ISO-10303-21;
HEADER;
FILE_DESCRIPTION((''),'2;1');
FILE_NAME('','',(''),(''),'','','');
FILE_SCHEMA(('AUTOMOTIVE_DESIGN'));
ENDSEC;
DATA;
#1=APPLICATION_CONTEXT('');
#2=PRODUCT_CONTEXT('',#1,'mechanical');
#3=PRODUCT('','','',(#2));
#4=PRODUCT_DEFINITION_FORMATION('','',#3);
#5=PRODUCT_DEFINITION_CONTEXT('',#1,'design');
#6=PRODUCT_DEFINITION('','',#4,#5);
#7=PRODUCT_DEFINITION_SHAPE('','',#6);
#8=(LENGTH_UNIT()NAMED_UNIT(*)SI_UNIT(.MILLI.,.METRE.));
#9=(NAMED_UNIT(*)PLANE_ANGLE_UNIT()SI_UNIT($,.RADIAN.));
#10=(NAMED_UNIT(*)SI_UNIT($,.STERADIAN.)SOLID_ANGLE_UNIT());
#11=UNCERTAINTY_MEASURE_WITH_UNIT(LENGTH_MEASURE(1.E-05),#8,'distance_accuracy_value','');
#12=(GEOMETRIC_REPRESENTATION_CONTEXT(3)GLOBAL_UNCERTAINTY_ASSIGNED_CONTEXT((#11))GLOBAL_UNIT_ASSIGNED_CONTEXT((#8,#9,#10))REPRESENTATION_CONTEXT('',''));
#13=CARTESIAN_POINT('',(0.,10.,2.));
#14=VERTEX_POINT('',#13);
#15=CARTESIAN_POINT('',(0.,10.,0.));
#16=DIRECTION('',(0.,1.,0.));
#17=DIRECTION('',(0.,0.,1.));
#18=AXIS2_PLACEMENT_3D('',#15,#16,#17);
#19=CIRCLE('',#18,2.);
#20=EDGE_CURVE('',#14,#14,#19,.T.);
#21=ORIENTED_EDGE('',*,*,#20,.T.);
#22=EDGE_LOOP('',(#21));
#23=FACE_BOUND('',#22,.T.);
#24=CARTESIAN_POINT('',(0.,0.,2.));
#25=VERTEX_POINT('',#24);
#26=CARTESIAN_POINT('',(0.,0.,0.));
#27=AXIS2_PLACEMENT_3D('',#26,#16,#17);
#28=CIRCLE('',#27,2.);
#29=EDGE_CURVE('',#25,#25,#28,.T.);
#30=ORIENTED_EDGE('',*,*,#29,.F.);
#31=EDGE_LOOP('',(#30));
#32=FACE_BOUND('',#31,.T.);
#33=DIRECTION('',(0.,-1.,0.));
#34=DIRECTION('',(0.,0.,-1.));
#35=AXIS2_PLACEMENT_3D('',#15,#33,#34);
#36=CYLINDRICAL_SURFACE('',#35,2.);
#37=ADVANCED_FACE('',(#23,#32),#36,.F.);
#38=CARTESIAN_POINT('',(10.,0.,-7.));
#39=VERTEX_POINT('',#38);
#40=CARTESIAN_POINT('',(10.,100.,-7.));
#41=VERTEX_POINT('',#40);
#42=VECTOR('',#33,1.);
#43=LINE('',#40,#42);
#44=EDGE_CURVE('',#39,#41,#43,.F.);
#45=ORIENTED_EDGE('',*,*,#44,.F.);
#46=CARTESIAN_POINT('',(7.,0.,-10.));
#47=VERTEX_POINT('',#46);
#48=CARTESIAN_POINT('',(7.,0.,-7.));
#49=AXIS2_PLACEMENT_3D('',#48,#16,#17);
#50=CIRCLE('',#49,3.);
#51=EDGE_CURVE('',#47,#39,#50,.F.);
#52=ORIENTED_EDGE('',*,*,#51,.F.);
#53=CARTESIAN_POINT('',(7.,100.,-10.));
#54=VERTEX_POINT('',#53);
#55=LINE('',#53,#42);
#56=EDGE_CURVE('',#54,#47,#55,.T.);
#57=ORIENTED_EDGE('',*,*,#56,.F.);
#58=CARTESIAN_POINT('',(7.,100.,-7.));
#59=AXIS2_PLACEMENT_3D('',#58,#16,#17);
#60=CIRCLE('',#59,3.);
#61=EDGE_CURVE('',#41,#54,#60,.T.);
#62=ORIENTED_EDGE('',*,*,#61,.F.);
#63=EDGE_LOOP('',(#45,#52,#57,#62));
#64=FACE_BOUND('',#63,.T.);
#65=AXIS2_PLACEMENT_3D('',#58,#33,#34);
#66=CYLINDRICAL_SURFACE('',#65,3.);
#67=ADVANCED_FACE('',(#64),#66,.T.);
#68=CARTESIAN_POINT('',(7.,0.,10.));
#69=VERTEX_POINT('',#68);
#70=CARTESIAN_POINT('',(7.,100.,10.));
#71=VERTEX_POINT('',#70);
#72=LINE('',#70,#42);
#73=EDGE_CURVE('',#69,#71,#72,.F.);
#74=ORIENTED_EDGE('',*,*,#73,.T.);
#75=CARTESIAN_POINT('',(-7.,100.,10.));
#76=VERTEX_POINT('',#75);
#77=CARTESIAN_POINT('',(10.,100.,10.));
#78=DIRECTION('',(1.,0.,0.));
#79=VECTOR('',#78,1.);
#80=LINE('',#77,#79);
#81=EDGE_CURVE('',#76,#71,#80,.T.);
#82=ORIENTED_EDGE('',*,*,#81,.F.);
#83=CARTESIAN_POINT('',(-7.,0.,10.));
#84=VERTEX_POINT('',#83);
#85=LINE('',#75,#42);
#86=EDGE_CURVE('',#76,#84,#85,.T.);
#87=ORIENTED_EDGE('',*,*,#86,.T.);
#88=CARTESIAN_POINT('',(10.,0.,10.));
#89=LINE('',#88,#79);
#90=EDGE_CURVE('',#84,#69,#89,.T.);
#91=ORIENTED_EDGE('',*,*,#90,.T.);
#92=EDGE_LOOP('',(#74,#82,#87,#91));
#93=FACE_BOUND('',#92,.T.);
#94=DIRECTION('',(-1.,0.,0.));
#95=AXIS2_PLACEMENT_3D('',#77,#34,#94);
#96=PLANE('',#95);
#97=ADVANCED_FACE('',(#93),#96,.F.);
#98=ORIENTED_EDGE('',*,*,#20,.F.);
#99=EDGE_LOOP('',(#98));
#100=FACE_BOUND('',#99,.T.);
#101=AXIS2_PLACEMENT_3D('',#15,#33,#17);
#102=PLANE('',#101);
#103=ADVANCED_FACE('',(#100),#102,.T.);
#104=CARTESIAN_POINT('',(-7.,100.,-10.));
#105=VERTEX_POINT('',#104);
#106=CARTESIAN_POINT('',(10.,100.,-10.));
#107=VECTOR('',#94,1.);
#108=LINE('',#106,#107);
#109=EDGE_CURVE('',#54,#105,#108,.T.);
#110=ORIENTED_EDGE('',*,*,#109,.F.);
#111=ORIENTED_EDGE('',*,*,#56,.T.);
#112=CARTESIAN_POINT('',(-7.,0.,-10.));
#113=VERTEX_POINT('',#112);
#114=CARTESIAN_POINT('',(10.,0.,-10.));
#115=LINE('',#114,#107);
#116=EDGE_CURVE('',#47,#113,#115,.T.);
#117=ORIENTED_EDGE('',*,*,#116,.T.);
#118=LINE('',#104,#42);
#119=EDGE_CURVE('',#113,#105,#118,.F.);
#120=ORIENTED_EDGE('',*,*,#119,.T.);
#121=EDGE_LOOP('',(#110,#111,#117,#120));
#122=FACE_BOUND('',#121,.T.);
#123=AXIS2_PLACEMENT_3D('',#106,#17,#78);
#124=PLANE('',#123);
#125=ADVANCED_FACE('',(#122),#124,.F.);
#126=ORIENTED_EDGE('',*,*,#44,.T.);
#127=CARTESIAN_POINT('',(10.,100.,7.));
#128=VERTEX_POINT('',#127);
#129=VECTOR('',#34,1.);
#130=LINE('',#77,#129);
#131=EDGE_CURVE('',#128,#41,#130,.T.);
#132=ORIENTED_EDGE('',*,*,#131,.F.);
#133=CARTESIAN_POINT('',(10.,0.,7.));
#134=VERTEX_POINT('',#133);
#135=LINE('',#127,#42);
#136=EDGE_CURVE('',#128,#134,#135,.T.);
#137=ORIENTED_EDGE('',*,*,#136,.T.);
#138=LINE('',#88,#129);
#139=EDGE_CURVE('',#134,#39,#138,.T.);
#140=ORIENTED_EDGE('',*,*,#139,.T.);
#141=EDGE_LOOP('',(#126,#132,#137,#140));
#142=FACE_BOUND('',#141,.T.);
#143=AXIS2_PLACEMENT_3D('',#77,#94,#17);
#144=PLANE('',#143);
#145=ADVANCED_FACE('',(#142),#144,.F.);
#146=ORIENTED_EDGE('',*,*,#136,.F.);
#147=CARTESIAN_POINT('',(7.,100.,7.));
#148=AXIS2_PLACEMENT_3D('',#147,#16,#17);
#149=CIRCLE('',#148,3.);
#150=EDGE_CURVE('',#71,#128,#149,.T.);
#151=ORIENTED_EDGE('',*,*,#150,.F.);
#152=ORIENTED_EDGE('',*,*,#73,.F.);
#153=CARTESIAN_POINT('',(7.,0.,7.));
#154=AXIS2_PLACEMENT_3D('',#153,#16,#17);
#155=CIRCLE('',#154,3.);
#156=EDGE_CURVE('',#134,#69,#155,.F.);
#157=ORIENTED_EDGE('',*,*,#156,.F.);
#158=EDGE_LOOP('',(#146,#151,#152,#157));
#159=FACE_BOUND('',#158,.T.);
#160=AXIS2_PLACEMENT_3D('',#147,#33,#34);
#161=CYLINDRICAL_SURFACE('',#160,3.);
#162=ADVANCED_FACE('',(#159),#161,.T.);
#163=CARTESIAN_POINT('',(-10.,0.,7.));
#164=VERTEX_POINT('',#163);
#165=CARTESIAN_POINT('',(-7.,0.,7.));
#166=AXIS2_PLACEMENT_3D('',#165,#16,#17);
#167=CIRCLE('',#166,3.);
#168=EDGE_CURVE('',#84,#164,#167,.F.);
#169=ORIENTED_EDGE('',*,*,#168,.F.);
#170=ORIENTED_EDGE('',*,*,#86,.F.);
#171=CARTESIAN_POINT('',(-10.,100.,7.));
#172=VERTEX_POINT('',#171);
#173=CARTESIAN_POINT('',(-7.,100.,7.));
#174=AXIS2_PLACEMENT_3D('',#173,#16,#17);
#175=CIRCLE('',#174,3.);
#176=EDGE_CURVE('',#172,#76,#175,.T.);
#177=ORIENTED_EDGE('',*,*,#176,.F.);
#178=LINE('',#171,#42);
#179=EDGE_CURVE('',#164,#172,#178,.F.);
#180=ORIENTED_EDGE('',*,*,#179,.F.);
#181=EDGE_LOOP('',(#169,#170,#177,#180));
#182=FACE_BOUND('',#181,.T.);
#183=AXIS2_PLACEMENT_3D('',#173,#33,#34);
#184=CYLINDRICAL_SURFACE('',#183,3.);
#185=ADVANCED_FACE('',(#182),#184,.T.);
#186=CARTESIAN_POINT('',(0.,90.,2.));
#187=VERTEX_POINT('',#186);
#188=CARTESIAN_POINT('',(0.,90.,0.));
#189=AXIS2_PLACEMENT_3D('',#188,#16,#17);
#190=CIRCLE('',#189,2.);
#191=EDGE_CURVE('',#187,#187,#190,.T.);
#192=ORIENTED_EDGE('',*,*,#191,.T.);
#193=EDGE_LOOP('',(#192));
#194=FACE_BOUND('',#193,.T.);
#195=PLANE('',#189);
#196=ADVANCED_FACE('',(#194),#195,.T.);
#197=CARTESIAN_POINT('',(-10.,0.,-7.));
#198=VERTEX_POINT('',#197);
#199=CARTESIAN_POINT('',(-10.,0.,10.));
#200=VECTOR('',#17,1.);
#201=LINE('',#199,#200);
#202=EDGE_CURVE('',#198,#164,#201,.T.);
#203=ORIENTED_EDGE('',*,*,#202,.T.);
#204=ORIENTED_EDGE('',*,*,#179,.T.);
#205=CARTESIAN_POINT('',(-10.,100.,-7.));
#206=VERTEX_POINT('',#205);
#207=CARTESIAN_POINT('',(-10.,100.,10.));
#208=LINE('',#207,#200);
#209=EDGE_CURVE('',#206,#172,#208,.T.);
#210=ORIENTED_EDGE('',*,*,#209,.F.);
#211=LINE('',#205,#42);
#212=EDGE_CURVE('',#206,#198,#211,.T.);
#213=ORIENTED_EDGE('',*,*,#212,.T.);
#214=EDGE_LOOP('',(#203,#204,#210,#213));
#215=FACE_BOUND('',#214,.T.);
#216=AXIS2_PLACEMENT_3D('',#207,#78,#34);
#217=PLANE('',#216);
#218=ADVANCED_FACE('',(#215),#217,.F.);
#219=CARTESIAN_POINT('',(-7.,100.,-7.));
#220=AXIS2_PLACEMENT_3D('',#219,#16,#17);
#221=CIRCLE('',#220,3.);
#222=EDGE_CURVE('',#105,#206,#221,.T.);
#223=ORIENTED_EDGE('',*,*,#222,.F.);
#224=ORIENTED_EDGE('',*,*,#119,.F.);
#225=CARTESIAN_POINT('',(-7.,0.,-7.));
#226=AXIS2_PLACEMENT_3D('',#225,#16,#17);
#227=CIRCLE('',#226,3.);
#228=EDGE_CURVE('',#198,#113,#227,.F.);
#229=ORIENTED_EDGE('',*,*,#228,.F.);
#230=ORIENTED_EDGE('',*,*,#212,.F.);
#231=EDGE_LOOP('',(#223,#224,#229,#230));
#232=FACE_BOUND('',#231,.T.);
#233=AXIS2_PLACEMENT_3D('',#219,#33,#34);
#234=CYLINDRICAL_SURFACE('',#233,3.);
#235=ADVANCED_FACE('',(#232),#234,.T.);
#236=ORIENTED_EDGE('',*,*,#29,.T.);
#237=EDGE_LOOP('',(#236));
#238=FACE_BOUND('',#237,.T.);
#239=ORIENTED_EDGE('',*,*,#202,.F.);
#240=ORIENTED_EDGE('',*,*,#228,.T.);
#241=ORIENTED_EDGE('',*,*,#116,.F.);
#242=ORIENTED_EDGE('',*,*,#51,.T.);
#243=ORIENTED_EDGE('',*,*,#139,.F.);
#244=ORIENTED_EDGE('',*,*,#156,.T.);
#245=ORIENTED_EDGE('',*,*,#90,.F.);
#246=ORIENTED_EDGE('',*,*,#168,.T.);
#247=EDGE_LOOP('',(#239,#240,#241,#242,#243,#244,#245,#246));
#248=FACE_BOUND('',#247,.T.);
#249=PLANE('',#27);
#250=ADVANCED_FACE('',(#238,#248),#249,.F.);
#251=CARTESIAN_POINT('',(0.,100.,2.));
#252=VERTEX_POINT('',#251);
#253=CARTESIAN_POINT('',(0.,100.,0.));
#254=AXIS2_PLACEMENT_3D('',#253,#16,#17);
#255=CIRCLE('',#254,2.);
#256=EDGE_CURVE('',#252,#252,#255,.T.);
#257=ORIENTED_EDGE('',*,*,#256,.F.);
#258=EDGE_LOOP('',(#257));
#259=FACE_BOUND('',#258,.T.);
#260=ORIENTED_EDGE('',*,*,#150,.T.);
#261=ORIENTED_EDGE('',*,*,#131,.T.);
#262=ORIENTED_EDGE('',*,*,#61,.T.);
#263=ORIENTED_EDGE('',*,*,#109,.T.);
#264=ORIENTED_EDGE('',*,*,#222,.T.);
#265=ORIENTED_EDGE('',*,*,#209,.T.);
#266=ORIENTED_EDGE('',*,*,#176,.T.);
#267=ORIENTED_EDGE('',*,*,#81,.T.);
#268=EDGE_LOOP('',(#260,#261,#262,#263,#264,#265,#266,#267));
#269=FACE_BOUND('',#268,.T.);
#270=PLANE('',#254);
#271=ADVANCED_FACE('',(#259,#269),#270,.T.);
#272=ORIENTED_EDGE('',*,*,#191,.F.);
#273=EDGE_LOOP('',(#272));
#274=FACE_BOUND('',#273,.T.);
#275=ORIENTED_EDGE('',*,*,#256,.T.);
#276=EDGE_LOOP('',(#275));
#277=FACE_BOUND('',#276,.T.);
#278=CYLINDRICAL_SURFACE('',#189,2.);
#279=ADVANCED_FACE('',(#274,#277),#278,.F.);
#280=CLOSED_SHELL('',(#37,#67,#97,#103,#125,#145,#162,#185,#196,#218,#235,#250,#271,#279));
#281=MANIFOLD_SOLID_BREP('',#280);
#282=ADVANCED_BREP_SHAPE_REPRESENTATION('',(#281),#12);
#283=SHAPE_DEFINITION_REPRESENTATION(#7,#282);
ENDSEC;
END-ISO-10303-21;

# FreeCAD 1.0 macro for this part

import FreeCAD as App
import Part
import Sketcher

V = App.Vector
Q = App.Units.Quantity


def edges_at(feature, points):
    """Names of the edges that pass closest to the given points."""
    edges = feature.Shape.Edges
    near = lambda p: min(range(len(edges)), key=lambda i: edges[i].distToShape(Part.Vertex(*p))[0])
    return sorted({f"Edge{near(p) + 1}" for p in points})

doc = App.newDocument("Part")
params = doc.addObject("Spreadsheet::Sheet", "Params")
for row, (alias, value) in enumerate([
    ("sketch1_width", "20 mm"),
    ("pad1_length", "100 mm"),
    ("fillet_radius", "3 mm"),
    ("sketch2_diameter", "4 mm"),
    ("pocket1_length", "10 mm"),
], start=1):
    params.set(f"A{row}", alias)
    params.set(f"B{row}", "=" + value)
    params.setAlias(f"B{row}", alias)

body = doc.addObject("PartDesign::Body", "Body")

sketch1 = body.newObject("Sketcher::SketchObject", "Sketch")
sketch1.AttachmentSupport = (doc.getObject("XZ_Plane"), [""])
sketch1.MapMode = "FlatFace"
sketch1.addGeometry([
    Part.LineSegment(V(-10, -10, 0), V(-10, 10, 0)),
    Part.LineSegment(V(-10, 10, 0), V(10, 10, 0)),
    Part.LineSegment(V(10, 10, 0), V(10, -10, 0)),
    Part.LineSegment(V(10, -10, 0), V(-10, -10, 0)),
], False)
sketch1.addConstraint([
    Sketcher.Constraint("Coincident", 0, 2, 1, 1),
    Sketcher.Constraint("Coincident", 1, 2, 2, 1),
    Sketcher.Constraint("Coincident", 2, 2, 3, 1),
    Sketcher.Constraint("Coincident", 3, 2, 0, 1),
    Sketcher.Constraint("Vertical", 0),
    Sketcher.Constraint("Horizontal", 1),
    Sketcher.Constraint("Vertical", 2),
    Sketcher.Constraint("Horizontal", 3),
    Sketcher.Constraint("Symmetric", 0, 2, 2, 2, -1, 1),
    Sketcher.Constraint("Equal", 3, 0),
    Sketcher.Constraint("DistanceX", 1, 1, 1, 2, Q("20 mm")),
])
sketch1.setExpression("Constraints[10]", "Params.sketch1_width")
pad1 = body.newObject("PartDesign::Pad", "Pad")
pad1.Profile = sketch1
pad1.setExpression("Length", "Params.pad1_length")
pad1.Reversed = True
doc.recompute()

fillet = body.newObject("PartDesign::Fillet", "Fillet")
fillet.Base = (pad1, edges_at(pad1, [
    (-10, 50, -10),
    (10, 50, -10),
    (10, 50, 10),
    (-10, 50, 10),
]))
fillet.setExpression("Radius", "Params.fillet_radius")

sketch2 = body.newObject("Sketcher::SketchObject", "Sketch001")
sketch2.AttachmentSupport = (doc.getObject("XZ_Plane"), [""])
sketch2.MapMode = "FlatFace"
sketch2.AttachmentOffset = App.Placement(V(0, 0, -100), App.Rotation())
sketch2.addGeometry(Part.Circle(V(0, 0, 0), V(0, 0, 1), 2), False)
sketch2.addConstraint([
    Sketcher.Constraint("Coincident", 0, 3, -1, 1),
    Sketcher.Constraint("Diameter", 0, Q("4 mm")),
])
sketch2.setExpression("Constraints[1]", "Params.sketch2_diameter")
pocket1 = body.newObject("PartDesign::Pocket", "Pocket")
pocket1.Profile = sketch2
pocket1.setExpression("Length", "Params.pocket1_length")
pocket1.Reversed = True
doc.recompute()

datumplane = body.newObject("PartDesign::Plane", "DatumPlane")
datumplane.AttachmentSupport = (doc.getObject("XZ_Plane"), [""])
datumplane.MapMode = "FlatFace"
datumplane.AttachmentOffset = App.Placement(V(0, 0, -50), App.Rotation())
mirrored = body.newObject("PartDesign::Mirrored", "Mirrored")
mirrored.Originals = [pocket1]
mirrored.MirrorPlane = (datumplane, [""])
body.Tip = mirrored

doc.recompute()
